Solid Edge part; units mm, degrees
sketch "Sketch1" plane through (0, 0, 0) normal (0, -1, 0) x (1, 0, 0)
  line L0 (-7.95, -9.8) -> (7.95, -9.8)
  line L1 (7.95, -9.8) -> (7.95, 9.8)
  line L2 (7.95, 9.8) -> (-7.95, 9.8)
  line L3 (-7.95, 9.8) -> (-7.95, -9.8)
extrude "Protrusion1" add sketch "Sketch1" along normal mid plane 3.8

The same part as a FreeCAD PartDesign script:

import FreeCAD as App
import Part
import Sketcher
from FreeCAD import Vector

doc = App.newDocument("Part")
body = doc.addObject("PartDesign::Body", "Body")

# Sketch on XZ plane
sketch1 = body.newObject("Sketcher::SketchObject", "Sketch")
sketch1.AttachmentSupport = (doc.getObject("XZ_Plane"), [""])
sketch1.MapMode = "FlatFace"
sketch1.addGeometry(Part.LineSegment(Vector(-7.95, 9.8, 0), Vector(-7.95, -9.8, 0)), False)
sketch1.addGeometry(Part.LineSegment(Vector(-7.95, -9.8, 0), Vector(7.95, -9.8, 0)), False)
sketch1.addGeometry(Part.LineSegment(Vector(7.95, -9.8, 0), Vector(7.95, 9.8, 0)), False)
sketch1.addGeometry(Part.LineSegment(Vector(7.95, 9.8, 0), Vector(-7.95, 9.8, 0)), False)
sketch1.addConstraint(Sketcher.Constraint("Coincident", 0, 2, 1, 1))
sketch1.addConstraint(Sketcher.Constraint("Coincident", 1, 2, 2, 1))
sketch1.addConstraint(Sketcher.Constraint("Coincident", 2, 2, 3, 1))
sketch1.addConstraint(Sketcher.Constraint("Coincident", 3, 2, 0, 1))
sketch1.addConstraint(Sketcher.Constraint("Vertical", 0))
sketch1.addConstraint(Sketcher.Constraint("Horizontal", 1))
sketch1.addConstraint(Sketcher.Constraint("Vertical", 2))
sketch1.addConstraint(Sketcher.Constraint("Horizontal", 3))
sketch1.addConstraint(Sketcher.Constraint("Symmetric", 0, 2, 2, 2, -1, 1))
sketch1.addConstraint(Sketcher.Constraint("DistanceX", 1, 1, 1, 2, 15.9))
sketch1.addConstraint(Sketcher.Constraint("DistanceY", 0, 2, 0, 1, 19.6))
pad1 = body.newObject("PartDesign::Pad", "Pad")
pad1.Profile = sketch1
pad1.Length = 3.8
pad1.Midplane = True

doc.recompute()
